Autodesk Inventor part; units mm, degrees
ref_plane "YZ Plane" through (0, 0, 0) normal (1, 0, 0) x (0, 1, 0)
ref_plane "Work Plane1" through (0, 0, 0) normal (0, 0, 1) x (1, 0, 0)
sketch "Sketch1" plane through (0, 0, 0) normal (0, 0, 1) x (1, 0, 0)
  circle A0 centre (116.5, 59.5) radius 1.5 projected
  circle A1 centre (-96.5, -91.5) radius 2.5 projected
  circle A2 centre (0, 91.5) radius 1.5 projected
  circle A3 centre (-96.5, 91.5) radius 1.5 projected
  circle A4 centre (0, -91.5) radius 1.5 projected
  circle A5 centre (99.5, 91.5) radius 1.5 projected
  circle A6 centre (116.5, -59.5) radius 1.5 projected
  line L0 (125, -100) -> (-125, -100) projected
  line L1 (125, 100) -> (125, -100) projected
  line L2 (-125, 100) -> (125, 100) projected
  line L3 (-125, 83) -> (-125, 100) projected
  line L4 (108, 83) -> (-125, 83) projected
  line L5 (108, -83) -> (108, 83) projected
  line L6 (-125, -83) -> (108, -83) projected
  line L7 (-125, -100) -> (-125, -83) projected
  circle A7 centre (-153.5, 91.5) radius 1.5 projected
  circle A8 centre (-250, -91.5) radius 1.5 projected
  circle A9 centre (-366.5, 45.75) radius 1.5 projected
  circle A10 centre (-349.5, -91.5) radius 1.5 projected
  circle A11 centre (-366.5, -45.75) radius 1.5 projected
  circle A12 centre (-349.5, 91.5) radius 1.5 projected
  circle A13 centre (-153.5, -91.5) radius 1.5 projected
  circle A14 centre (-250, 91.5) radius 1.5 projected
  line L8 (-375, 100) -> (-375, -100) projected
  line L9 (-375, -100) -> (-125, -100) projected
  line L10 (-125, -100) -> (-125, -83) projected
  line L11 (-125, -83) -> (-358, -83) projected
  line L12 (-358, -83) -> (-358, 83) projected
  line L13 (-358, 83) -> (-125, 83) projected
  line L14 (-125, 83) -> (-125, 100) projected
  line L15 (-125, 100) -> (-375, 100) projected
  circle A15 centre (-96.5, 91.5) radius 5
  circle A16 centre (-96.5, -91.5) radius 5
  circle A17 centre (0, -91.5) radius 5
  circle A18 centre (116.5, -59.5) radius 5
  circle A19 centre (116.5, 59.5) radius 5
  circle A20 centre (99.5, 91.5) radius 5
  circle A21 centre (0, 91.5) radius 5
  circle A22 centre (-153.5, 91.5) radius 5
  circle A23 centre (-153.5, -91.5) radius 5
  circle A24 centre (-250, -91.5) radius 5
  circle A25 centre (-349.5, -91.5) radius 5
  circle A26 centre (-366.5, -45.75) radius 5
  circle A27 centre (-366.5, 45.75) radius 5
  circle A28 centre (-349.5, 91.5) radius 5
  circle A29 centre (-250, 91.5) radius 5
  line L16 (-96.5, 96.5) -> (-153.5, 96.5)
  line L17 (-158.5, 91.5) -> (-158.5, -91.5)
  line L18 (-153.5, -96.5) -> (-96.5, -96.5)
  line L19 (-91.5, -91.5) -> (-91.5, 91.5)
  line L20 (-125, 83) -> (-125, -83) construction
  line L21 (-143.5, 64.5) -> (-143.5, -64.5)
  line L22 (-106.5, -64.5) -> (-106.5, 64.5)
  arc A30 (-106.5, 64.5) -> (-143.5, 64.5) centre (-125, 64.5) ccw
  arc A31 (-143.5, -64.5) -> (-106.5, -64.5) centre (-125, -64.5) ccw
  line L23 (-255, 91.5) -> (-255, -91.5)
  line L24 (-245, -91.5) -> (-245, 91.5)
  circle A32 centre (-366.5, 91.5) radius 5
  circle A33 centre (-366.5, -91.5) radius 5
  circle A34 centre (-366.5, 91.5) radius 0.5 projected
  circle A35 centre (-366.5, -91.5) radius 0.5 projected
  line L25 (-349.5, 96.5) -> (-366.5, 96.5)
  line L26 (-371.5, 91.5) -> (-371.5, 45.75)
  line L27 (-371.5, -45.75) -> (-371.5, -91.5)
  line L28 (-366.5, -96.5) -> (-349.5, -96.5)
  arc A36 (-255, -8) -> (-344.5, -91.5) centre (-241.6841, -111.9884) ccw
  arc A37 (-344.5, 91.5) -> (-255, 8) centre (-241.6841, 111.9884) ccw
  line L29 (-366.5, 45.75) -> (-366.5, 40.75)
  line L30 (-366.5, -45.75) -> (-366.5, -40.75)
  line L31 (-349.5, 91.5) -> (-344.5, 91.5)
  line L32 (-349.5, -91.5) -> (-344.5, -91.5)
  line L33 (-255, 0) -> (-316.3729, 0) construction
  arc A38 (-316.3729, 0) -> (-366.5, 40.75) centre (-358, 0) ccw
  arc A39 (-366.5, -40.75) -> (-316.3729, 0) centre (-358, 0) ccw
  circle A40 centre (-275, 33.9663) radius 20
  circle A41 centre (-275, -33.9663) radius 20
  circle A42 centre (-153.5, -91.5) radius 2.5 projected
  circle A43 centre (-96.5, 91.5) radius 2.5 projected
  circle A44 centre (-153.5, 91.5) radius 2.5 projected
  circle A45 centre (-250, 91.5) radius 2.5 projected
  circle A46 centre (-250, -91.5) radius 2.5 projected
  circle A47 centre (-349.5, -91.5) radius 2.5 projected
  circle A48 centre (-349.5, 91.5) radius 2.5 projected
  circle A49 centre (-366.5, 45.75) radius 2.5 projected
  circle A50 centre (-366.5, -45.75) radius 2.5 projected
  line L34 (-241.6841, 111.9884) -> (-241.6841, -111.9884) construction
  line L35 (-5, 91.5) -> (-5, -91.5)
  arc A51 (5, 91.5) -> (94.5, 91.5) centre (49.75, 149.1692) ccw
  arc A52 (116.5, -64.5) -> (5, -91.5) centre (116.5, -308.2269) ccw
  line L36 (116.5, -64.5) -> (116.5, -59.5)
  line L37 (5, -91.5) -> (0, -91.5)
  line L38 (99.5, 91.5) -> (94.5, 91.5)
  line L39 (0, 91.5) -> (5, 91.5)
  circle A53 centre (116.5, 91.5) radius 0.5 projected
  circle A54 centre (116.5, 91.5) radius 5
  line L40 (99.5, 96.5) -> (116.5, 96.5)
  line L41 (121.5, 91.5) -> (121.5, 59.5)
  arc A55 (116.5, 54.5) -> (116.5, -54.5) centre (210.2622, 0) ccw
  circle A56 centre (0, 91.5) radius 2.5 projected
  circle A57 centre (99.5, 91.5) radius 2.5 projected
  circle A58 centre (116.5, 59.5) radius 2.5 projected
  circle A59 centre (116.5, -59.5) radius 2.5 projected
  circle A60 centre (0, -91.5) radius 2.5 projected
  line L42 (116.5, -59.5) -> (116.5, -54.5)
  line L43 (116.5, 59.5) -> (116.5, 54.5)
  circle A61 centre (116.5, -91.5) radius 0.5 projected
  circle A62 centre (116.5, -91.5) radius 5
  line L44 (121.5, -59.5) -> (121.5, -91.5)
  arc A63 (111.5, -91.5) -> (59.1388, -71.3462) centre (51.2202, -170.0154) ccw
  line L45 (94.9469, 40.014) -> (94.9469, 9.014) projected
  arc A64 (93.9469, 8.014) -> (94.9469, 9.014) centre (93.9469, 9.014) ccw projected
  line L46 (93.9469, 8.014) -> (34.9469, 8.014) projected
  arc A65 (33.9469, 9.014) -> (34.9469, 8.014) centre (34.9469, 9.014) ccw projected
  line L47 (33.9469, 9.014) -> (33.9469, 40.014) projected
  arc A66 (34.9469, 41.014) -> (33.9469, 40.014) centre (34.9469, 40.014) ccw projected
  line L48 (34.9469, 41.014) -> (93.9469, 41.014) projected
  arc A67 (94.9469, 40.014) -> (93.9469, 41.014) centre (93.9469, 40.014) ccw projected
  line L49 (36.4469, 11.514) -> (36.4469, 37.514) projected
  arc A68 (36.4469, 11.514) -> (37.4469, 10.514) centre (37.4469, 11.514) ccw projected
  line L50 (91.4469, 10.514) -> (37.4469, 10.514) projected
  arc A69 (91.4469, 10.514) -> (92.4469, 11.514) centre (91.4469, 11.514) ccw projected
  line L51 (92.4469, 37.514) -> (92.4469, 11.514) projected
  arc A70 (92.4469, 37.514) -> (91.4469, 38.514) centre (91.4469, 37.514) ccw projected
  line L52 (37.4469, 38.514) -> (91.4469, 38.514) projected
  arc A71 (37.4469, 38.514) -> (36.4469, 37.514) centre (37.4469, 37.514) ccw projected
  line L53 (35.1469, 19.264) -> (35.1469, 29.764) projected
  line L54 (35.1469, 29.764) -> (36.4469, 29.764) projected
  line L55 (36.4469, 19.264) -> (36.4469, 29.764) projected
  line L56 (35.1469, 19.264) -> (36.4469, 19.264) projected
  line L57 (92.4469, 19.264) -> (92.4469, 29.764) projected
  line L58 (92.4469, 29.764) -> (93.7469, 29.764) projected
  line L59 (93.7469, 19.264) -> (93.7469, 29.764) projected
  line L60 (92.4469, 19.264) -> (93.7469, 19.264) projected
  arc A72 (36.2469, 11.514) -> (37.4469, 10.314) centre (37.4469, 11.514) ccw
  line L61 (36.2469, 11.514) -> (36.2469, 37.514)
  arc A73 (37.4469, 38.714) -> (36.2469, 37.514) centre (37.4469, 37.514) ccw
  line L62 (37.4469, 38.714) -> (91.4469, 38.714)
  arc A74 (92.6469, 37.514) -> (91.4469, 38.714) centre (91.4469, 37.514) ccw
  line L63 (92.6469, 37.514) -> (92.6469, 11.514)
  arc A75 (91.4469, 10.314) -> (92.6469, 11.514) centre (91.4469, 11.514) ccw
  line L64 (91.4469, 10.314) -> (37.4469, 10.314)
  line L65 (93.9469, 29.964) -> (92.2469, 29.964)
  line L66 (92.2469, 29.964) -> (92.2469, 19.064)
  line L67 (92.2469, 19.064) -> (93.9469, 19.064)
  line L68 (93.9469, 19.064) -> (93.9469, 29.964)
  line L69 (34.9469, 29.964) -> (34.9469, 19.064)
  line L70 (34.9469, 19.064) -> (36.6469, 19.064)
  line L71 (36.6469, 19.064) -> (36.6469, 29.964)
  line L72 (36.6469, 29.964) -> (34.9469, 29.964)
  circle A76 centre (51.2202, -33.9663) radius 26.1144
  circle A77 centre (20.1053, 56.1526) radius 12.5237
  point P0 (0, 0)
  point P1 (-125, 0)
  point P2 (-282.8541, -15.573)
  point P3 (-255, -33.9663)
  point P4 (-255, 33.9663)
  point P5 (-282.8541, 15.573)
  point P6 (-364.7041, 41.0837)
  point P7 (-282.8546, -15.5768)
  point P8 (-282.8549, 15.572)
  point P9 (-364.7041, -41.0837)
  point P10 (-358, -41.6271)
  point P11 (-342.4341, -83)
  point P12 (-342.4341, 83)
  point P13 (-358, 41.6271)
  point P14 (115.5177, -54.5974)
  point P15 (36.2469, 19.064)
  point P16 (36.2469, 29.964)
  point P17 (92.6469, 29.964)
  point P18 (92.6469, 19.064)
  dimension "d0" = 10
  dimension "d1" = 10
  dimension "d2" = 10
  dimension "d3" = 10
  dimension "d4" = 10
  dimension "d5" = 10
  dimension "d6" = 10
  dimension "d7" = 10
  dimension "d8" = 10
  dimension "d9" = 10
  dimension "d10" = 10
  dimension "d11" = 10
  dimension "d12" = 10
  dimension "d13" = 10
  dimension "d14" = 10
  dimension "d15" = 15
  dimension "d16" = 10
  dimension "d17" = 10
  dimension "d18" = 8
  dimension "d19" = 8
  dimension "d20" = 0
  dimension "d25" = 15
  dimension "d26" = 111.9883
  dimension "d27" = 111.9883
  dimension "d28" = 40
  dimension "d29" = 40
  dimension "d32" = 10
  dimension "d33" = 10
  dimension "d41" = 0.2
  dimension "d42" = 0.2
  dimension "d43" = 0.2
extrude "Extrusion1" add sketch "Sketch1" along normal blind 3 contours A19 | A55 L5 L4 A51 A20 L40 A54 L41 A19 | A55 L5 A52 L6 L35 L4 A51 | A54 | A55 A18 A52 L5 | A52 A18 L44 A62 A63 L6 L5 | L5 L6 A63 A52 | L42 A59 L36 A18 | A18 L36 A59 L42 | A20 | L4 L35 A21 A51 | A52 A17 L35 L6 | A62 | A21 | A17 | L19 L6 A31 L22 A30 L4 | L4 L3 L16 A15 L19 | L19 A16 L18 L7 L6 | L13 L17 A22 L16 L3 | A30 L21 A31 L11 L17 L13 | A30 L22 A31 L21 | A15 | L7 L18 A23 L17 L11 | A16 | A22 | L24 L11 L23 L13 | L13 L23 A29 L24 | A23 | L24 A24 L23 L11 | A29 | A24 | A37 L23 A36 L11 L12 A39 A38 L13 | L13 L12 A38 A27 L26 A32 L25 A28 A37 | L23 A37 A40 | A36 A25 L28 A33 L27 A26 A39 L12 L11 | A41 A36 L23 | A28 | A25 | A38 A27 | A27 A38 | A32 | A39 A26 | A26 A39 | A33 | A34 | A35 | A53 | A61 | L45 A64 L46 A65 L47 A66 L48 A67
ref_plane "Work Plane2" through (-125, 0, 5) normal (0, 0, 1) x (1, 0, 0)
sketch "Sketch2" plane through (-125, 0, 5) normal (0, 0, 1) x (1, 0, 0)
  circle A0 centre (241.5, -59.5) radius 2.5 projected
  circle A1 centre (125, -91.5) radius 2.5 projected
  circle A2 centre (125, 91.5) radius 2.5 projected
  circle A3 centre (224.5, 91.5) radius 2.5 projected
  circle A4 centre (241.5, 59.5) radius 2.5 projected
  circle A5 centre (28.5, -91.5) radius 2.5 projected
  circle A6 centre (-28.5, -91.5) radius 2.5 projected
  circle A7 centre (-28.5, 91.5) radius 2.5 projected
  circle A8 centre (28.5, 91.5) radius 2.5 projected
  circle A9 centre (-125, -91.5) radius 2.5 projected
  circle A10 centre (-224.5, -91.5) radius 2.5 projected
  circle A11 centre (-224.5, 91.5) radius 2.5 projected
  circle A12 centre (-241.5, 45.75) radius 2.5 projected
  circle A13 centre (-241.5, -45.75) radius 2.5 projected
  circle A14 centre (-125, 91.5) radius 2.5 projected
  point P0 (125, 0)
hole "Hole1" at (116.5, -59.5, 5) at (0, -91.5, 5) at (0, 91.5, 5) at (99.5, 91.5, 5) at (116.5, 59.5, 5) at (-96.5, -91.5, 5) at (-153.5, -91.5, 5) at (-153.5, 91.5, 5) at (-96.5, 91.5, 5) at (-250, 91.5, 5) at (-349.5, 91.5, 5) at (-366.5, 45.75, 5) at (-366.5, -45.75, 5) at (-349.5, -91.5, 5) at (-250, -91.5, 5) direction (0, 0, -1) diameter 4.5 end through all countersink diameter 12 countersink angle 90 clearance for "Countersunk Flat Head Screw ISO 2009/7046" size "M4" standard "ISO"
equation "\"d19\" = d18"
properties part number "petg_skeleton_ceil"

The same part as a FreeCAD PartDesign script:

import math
import FreeCAD as App
import Part
import Sketcher
Q = App.Units.Quantity

doc = App.newDocument("Part")
body = doc.addObject("PartDesign::Body", "Body")
body.AllowCompound = True

sketch1 = doc.addObject("Sketcher::SketchObject", "Sketch")
body.addObject(sketch1)
sketch1.AttachmentSupport = (doc.XY_Plane, [""])
sketch1.MapMode = "FlatFace"
sketch1.addGeometry(Part.ArcOfCircle(Part.Circle(App.Vector(116.5, 59.5, 0), App.Vector(0, 0, 1), 5), math.radians(-90), math.radians(0)), False)
sketch1.addGeometry(Part.LineSegment(App.Vector(121.5, 59.5, 0), App.Vector(121.5, 91.5, 0)), False)
sketch1.addGeometry(Part.ArcOfCircle(Part.Circle(App.Vector(116.5, 91.5, 0), App.Vector(0, 0, 1), 5), math.radians(0), math.radians(90)), False)
sketch1.addGeometry(Part.LineSegment(App.Vector(116.5, 96.5, 0), App.Vector(99.5, 96.5, 0)), False)
sketch1.addGeometry(Part.ArcOfCircle(Part.Circle(App.Vector(99.5, 91.5, 0), App.Vector(0, 0, 1), 5), math.radians(90), math.radians(180)), False)
sketch1.addGeometry(Part.ArcOfCircle(Part.Circle(App.Vector(49.75, 149.1692, 0), App.Vector(0, 0, 1), 72.995199), math.radians(-127.810657), math.radians(-52.189343)), False)
sketch1.addGeometry(Part.ArcOfCircle(Part.Circle(App.Vector(0, 91.5, 0), App.Vector(0, 0, 1), 5), math.radians(0), math.radians(180)), False)
sketch1.addGeometry(Part.LineSegment(App.Vector(-5, 91.5, 0), App.Vector(-5, -91.5, 0)), False)
sketch1.addGeometry(Part.ArcOfCircle(Part.Circle(App.Vector(0, -91.5, 0), App.Vector(0, 0, 1), 5), math.radians(180), math.radians(360)), False)
sketch1.addGeometry(Part.ArcOfCircle(Part.Circle(App.Vector(116.5, -308.2269, 0), App.Vector(0, 0, 1), 243.7269), math.radians(103.612276), math.radians(117.224568)), False)
sketch1.addGeometry(Part.ArcOfCircle(Part.Circle(App.Vector(51.2202, -170.0154, 0), App.Vector(0, 0, 1), 98.986475), math.radians(52.484931), math.radians(85.411617)), False)
sketch1.addGeometry(Part.ArcOfCircle(Part.Circle(App.Vector(116.5, -91.5, 0), App.Vector(0, 0, 1), 5), math.radians(180), math.radians(360)), False)
sketch1.addGeometry(Part.LineSegment(App.Vector(121.5, -91.5, 0), App.Vector(121.5, -59.5, 0)), False)
sketch1.addGeometry(Part.ArcOfCircle(Part.Circle(App.Vector(116.5, -59.5, 0), App.Vector(0, 0, 1), 5), math.radians(0), math.radians(90)), False)
sketch1.addGeometry(Part.ArcOfCircle(Part.Circle(App.Vector(210.2622, 0, 0), App.Vector(0, 0, 1), 108.450911), math.radians(149.832375), math.radians(210.167625)), False)
sketch1.addGeometry(Part.Circle(App.Vector(116.5, 59.5, 0), App.Vector(0, 0, 1), 2.5), False)
sketch1.addGeometry(Part.Circle(App.Vector(20.1053, 56.1526, 0), App.Vector(0, 0, 1), 12.5237), False)
sketch1.addGeometry(Part.Circle(App.Vector(51.2202, -33.9663, 0), App.Vector(0, 0, 1), 26.1144), False)
sketch1.addGeometry(Part.Circle(App.Vector(99.5, 91.5, 0), App.Vector(0, 0, 1), 2.5), False)
sketch1.addGeometry(Part.LineSegment(App.Vector(36.2469, 19.064, 0), App.Vector(34.9469, 19.064, 0)), False)
sketch1.addGeometry(Part.LineSegment(App.Vector(34.9469, 19.064, 0), App.Vector(34.9469, 29.964, 0)), False)
sketch1.addGeometry(Part.LineSegment(App.Vector(34.9469, 29.964, 0), App.Vector(36.2469, 29.964, 0)), False)
sketch1.addGeometry(Part.LineSegment(App.Vector(36.2469, 29.964, 0), App.Vector(36.2469, 37.514, 0)), False)
sketch1.addGeometry(Part.ArcOfCircle(Part.Circle(App.Vector(37.4469, 37.514, 0), App.Vector(0, 0, 1), 1.2), math.radians(90), math.radians(180)), False)
sketch1.addGeometry(Part.LineSegment(App.Vector(37.4469, 38.714, 0), App.Vector(91.4469, 38.714, 0)), False)
sketch1.addGeometry(Part.ArcOfCircle(Part.Circle(App.Vector(91.4469, 37.514, 0), App.Vector(0, 0, 1), 1.2), math.radians(0), math.radians(90)), False)
sketch1.addGeometry(Part.LineSegment(App.Vector(92.6469, 37.514, 0), App.Vector(92.6469, 29.964, 0)), False)
sketch1.addGeometry(Part.LineSegment(App.Vector(92.6469, 29.964, 0), App.Vector(93.9469, 29.964, 0)), False)
sketch1.addGeometry(Part.LineSegment(App.Vector(93.9469, 29.964, 0), App.Vector(93.9469, 19.064, 0)), False)
sketch1.addGeometry(Part.LineSegment(App.Vector(93.9469, 19.064, 0), App.Vector(92.6469, 19.064, 0)), False)
sketch1.addGeometry(Part.LineSegment(App.Vector(92.6469, 19.064, 0), App.Vector(92.6469, 11.514, 0)), False)
sketch1.addGeometry(Part.ArcOfCircle(Part.Circle(App.Vector(91.4469, 11.514, 0), App.Vector(0, 0, 1), 1.2), math.radians(-90), math.radians(0)), False)
sketch1.addGeometry(Part.LineSegment(App.Vector(91.4469, 10.314, 0), App.Vector(37.4469, 10.314, 0)), False)
sketch1.addGeometry(Part.ArcOfCircle(Part.Circle(App.Vector(37.4469, 11.514, 0), App.Vector(0, 0, 1), 1.2), math.radians(180), math.radians(270)), False)
sketch1.addGeometry(Part.LineSegment(App.Vector(36.2469, 11.514, 0), App.Vector(36.2469, 19.064, 0)), False)
sketch1.addGeometry(Part.Circle(App.Vector(116.5, -59.5, 0), App.Vector(0, 0, 1), 2.5), False)
sketch1.addGeometry(Part.Circle(App.Vector(0, -91.5, 0), App.Vector(0, 0, 1), 2.5), False)
sketch1.addGeometry(Part.Circle(App.Vector(0, 91.5, 0), App.Vector(0, 0, 1), 2.5), False)
sketch1.addGeometry(Part.ArcOfCircle(Part.Circle(App.Vector(-96.5, 91.5, 0), App.Vector(0, 0, 1), 5), math.radians(0), math.radians(90)), False)
sketch1.addGeometry(Part.LineSegment(App.Vector(-96.5, 96.5, 0), App.Vector(-153.5, 96.5, 0)), False)
sketch1.addGeometry(Part.ArcOfCircle(Part.Circle(App.Vector(-153.5, 91.5, 0), App.Vector(0, 0, 1), 5), math.radians(90), math.radians(180)), False)
sketch1.addGeometry(Part.LineSegment(App.Vector(-158.5, 91.5, 0), App.Vector(-158.5, -91.5, 0)), False)
sketch1.addGeometry(Part.ArcOfCircle(Part.Circle(App.Vector(-153.5, -91.5, 0), App.Vector(0, 0, 1), 5), math.radians(180), math.radians(270)), False)
sketch1.addGeometry(Part.LineSegment(App.Vector(-153.5, -96.5, 0), App.Vector(-96.5, -96.5, 0)), False)
sketch1.addGeometry(Part.ArcOfCircle(Part.Circle(App.Vector(-96.5, -91.5, 0), App.Vector(0, 0, 1), 5), math.radians(-90), math.radians(0)), False)
sketch1.addGeometry(Part.LineSegment(App.Vector(-91.5, -91.5, 0), App.Vector(-91.5, 91.5, 0)), False)
sketch1.addGeometry(Part.Circle(App.Vector(-96.5, -91.5, 0), App.Vector(0, 0, 1), 2.5), False)
sketch1.addGeometry(Part.Circle(App.Vector(-96.5, 91.5, 0), App.Vector(0, 0, 1), 2.5), False)
sketch1.addGeometry(Part.Circle(App.Vector(-153.5, -91.5, 0), App.Vector(0, 0, 1), 2.5), False)
sketch1.addGeometry(Part.Circle(App.Vector(-153.5, 91.5, 0), App.Vector(0, 0, 1), 2.5), False)
sketch1.addGeometry(Part.ArcOfCircle(Part.Circle(App.Vector(-250, 91.5, 0), App.Vector(0, 0, 1), 5), math.radians(0), math.radians(180)), False)
sketch1.addGeometry(Part.LineSegment(App.Vector(-255, 91.5, 0), App.Vector(-255, 33.9663, 0)), False)
sketch1.addGeometry(Part.ArcOfCircle(Part.Circle(App.Vector(-275, 33.9663, 0), App.Vector(0, 0, 1), 20), math.radians(-113.122862), math.radians(0)), False)
sketch1.addGeometry(Part.ArcOfCircle(Part.Circle(App.Vector(-241.6841, 111.9884, 0), App.Vector(0, 0, 1), 104.837416), math.radians(-168.730143), math.radians(-113.122787)), False)
sketch1.addGeometry(Part.ArcOfCircle(Part.Circle(App.Vector(-349.5, 91.5, 0), App.Vector(0, 0, 1), 5), math.radians(0), math.radians(90)), False)
sketch1.addGeometry(Part.LineSegment(App.Vector(-349.5, 96.5, 0), App.Vector(-366.5, 96.5, 0)), False)
sketch1.addGeometry(Part.ArcOfCircle(Part.Circle(App.Vector(-366.5, 91.5, 0), App.Vector(0, 0, 1), 5), math.radians(90), math.radians(180)), False)
sketch1.addGeometry(Part.LineSegment(App.Vector(-371.5, 91.5, 0), App.Vector(-371.5, 45.75, 0)), False)
sketch1.addGeometry(Part.ArcOfCircle(Part.Circle(App.Vector(-366.5, 45.75, 0), App.Vector(0, 0, 1), 5), math.radians(180), math.radians(270)), False)
sketch1.addGeometry(Part.ArcOfCircle(Part.Circle(App.Vector(-366.5, 45.75, 0), App.Vector(0, 0, 1), 5), math.radians(-90), math.radians(-68.949658)), False)
sketch1.addGeometry(Part.ArcOfCircle(Part.Circle(App.Vector(-358, 0, 0), App.Vector(0, 0, 1), 41.627065), math.radians(0), math.radians(99.267876)), False)
sketch1.addGeometry(Part.ArcOfCircle(Part.Circle(App.Vector(-358, 0, 0), App.Vector(0, 0, 1), 41.6271), math.radians(-99.267897), math.radians(0)), False)
sketch1.addGeometry(Part.ArcOfCircle(Part.Circle(App.Vector(-366.5, -45.75, 0), App.Vector(0, 0, 1), 5), math.radians(68.949838), math.radians(90)), False)
sketch1.addGeometry(Part.ArcOfCircle(Part.Circle(App.Vector(-366.5, -45.75, 0), App.Vector(0, 0, 1), 5), math.radians(90), math.radians(180)), False)
sketch1.addGeometry(Part.LineSegment(App.Vector(-371.5, -45.75, 0), App.Vector(-371.5, -91.5, 0)), False)
sketch1.addGeometry(Part.ArcOfCircle(Part.Circle(App.Vector(-366.5, -91.5, 0), App.Vector(0, 0, 1), 5), math.radians(180), math.radians(270)), False)
sketch1.addGeometry(Part.LineSegment(App.Vector(-366.5, -96.5, 0), App.Vector(-349.5, -96.5, 0)), False)
sketch1.addGeometry(Part.ArcOfCircle(Part.Circle(App.Vector(-349.5, -91.5, 0), App.Vector(0, 0, 1), 5), math.radians(-90), math.radians(0)), False)
sketch1.addGeometry(Part.ArcOfCircle(Part.Circle(App.Vector(-241.6841, -111.9884, 0), App.Vector(0, 0, 1), 104.837496), math.radians(113.122769), math.radians(168.730143)), False)
sketch1.addGeometry(Part.ArcOfCircle(Part.Circle(App.Vector(-275, -33.9663, 0), App.Vector(0, 0, 1), 20), math.radians(0), math.radians(113.122765)), False)
sketch1.addGeometry(Part.LineSegment(App.Vector(-255, -33.9663, 0), App.Vector(-255, -91.5, 0)), False)
sketch1.addGeometry(Part.ArcOfCircle(Part.Circle(App.Vector(-250, -91.5, 0), App.Vector(0, 0, 1), 5), math.radians(180), math.radians(360)), False)
sketch1.addGeometry(Part.LineSegment(App.Vector(-245, -91.5, 0), App.Vector(-245, 91.5, 0)), False)
sketch1.addGeometry(Part.Circle(App.Vector(-250, -91.5, 0), App.Vector(0, 0, 1), 2.5), False)
sketch1.addGeometry(Part.Circle(App.Vector(-250, 91.5, 0), App.Vector(0, 0, 1), 2.5), False)
sketch1.addGeometry(Part.Circle(App.Vector(-349.5, 91.5, 0), App.Vector(0, 0, 1), 2.5), False)
sketch1.addGeometry(Part.Circle(App.Vector(-366.5, 45.75, 0), App.Vector(0, 0, 1), 2.5), False)
sketch1.addGeometry(Part.Circle(App.Vector(-349.5, -91.5, 0), App.Vector(0, 0, 1), 2.5), False)
sketch1.addGeometry(Part.Circle(App.Vector(-366.5, -45.75, 0), App.Vector(0, 0, 1), 2.5), False)
sketch1.addConstraint(Sketcher.Constraint("Tangent", 0, 2, 1, 1))
sketch1.addConstraint(Sketcher.Constraint("Tangent", 1, 2, 2, 1))
sketch1.addConstraint(Sketcher.Constraint("Tangent", 2, 2, 3, 1))
sketch1.addConstraint(Sketcher.Constraint("Tangent", 3, 2, 4, 1))
sketch1.addConstraint(Sketcher.Constraint("Coincident", 4, 2, 5, 2))
sketch1.addConstraint(Sketcher.Constraint("Coincident", 5, 1, 6, 1))
sketch1.addConstraint(Sketcher.Constraint("Tangent", 6, 2, 7, 1))
sketch1.addConstraint(Sketcher.Constraint("Tangent", 7, 2, 8, 1))
sketch1.addConstraint(Sketcher.Constraint("Coincident", 8, 2, 9, 2))
sketch1.addConstraint(Sketcher.Constraint("Coincident", 9, 1, 10, 2))
sketch1.addConstraint(Sketcher.Constraint("Coincident", 10, 1, 11, 1))
sketch1.addConstraint(Sketcher.Constraint("Tangent", 11, 2, 12, 1))
sketch1.addConstraint(Sketcher.Constraint("Tangent", 12, 2, 13, 1))
sketch1.addConstraint(Sketcher.Constraint("Coincident", 13, 2, 14, 2))
sketch1.addConstraint(Sketcher.Constraint("Coincident", 14, 1, 0, 1))
sketch1.addConstraint(Sketcher.Constraint("Coincident", 19, 2, 20, 1))
sketch1.addConstraint(Sketcher.Constraint("Coincident", 20, 2, 21, 1))
sketch1.addConstraint(Sketcher.Constraint("Coincident", 21, 2, 22, 1))
sketch1.addConstraint(Sketcher.Constraint("Tangent", 22, 2, 23, 2))
sketch1.addConstraint(Sketcher.Constraint("Tangent", 23, 1, 24, 1))
sketch1.addConstraint(Sketcher.Constraint("Tangent", 24, 2, 25, 2))
sketch1.addConstraint(Sketcher.Constraint("Tangent", 25, 1, 26, 1))
sketch1.addConstraint(Sketcher.Constraint("Coincident", 26, 2, 27, 1))
sketch1.addConstraint(Sketcher.Constraint("Coincident", 27, 2, 28, 1))
sketch1.addConstraint(Sketcher.Constraint("Coincident", 28, 2, 29, 1))
sketch1.addConstraint(Sketcher.Constraint("Coincident", 29, 2, 30, 1))
sketch1.addConstraint(Sketcher.Constraint("Tangent", 30, 2, 31, 2))
sketch1.addConstraint(Sketcher.Constraint("Tangent", 31, 1, 32, 1))
sketch1.addConstraint(Sketcher.Constraint("Tangent", 32, 2, 33, 2))
sketch1.addConstraint(Sketcher.Constraint("Tangent", 33, 1, 34, 1))
sketch1.addConstraint(Sketcher.Constraint("Coincident", 34, 2, 19, 1))
sketch1.addConstraint(Sketcher.Constraint("Tangent", 38, 2, 39, 1))
sketch1.addConstraint(Sketcher.Constraint("Tangent", 39, 2, 40, 1))
sketch1.addConstraint(Sketcher.Constraint("Tangent", 40, 2, 41, 1))
sketch1.addConstraint(Sketcher.Constraint("Tangent", 41, 2, 42, 1))
sketch1.addConstraint(Sketcher.Constraint("Tangent", 42, 2, 43, 1))
sketch1.addConstraint(Sketcher.Constraint("Tangent", 43, 2, 44, 1))
sketch1.addConstraint(Sketcher.Constraint("Tangent", 44, 2, 45, 1))
sketch1.addConstraint(Sketcher.Constraint("Tangent", 45, 2, 38, 1))
sketch1.addConstraint(Sketcher.Constraint("Tangent", 50, 2, 51, 1))
sketch1.addConstraint(Sketcher.Constraint("Tangent", 51, 2, 52, 2))
sketch1.addConstraint(Sketcher.Constraint("Tangent", 52, 1, 53, 2))
sketch1.addConstraint(Sketcher.Constraint("Coincident", 53, 1, 54, 1))
sketch1.addConstraint(Sketcher.Constraint("Tangent", 54, 2, 55, 1))
sketch1.addConstraint(Sketcher.Constraint("Tangent", 55, 2, 56, 1))
sketch1.addConstraint(Sketcher.Constraint("Tangent", 56, 2, 57, 1))
sketch1.addConstraint(Sketcher.Constraint("Tangent", 57, 2, 58, 1))
sketch1.addConstraint(Sketcher.Constraint("Tangent", 58, 2, 59, 1))
sketch1.addConstraint(Sketcher.Constraint("Coincident", 59, 2, 60, 2))
sketch1.addConstraint(Sketcher.Constraint("Tangent", 60, 1, 61, 2))
sketch1.addConstraint(Sketcher.Constraint("Coincident", 61, 1, 62, 1))
sketch1.addConstraint(Sketcher.Constraint("Tangent", 62, 2, 63, 1))
sketch1.addConstraint(Sketcher.Constraint("Tangent", 63, 2, 64, 1))
sketch1.addConstraint(Sketcher.Constraint("Tangent", 64, 2, 65, 1))
sketch1.addConstraint(Sketcher.Constraint("Tangent", 65, 2, 66, 1))
sketch1.addConstraint(Sketcher.Constraint("Tangent", 66, 2, 67, 1))
sketch1.addConstraint(Sketcher.Constraint("Coincident", 67, 2, 68, 2))
sketch1.addConstraint(Sketcher.Constraint("Tangent", 68, 1, 69, 2))
sketch1.addConstraint(Sketcher.Constraint("Tangent", 69, 1, 70, 1))
sketch1.addConstraint(Sketcher.Constraint("Tangent", 70, 2, 71, 1))
sketch1.addConstraint(Sketcher.Constraint("Tangent", 71, 2, 72, 1))
sketch1.addConstraint(Sketcher.Constraint("Tangent", 72, 2, 50, 1))
sketch1.addConstraint(Sketcher.Constraint("Vertical", 1))
sketch1.addConstraint(Sketcher.Constraint("Horizontal", 3))
sketch1.addConstraint(Sketcher.Constraint("Vertical", 7))
sketch1.addConstraint(Sketcher.Constraint("Vertical", 12))
sketch1.addConstraint(Sketcher.Constraint("Horizontal", 19))
sketch1.addConstraint(Sketcher.Constraint("Vertical", 20))
sketch1.addConstraint(Sketcher.Constraint("Horizontal", 21))
sketch1.addConstraint(Sketcher.Constraint("Vertical", 22))
sketch1.addConstraint(Sketcher.Constraint("Horizontal", 24))
sketch1.addConstraint(Sketcher.Constraint("Vertical", 26))
sketch1.addConstraint(Sketcher.Constraint("Horizontal", 27))
sketch1.addConstraint(Sketcher.Constraint("Vertical", 28))
sketch1.addConstraint(Sketcher.Constraint("Horizontal", 29))
sketch1.addConstraint(Sketcher.Constraint("Vertical", 30))
sketch1.addConstraint(Sketcher.Constraint("Horizontal", 32))
sketch1.addConstraint(Sketcher.Constraint("Vertical", 34))
sketch1.addConstraint(Sketcher.Constraint("Horizontal", 39))
sketch1.addConstraint(Sketcher.Constraint("Vertical", 41))
sketch1.addConstraint(Sketcher.Constraint("Horizontal", 43))
sketch1.addConstraint(Sketcher.Constraint("Vertical", 45))
sketch1.addConstraint(Sketcher.Constraint("Vertical", 51))
sketch1.addConstraint(Sketcher.Constraint("Horizontal", 55))
sketch1.addConstraint(Sketcher.Constraint("Vertical", 57))
sketch1.addConstraint(Sketcher.Constraint("Vertical", 64))
sketch1.addConstraint(Sketcher.Constraint("Horizontal", 66))
sketch1.addConstraint(Sketcher.Constraint("Vertical", 70))
sketch1.addConstraint(Sketcher.Constraint("Vertical", 72))
sketch1.addConstraint(Sketcher.Constraint("Coincident", 15, 3, 0, 3))
sketch1.addConstraint(Sketcher.Constraint("Coincident", 18, 3, 4, 3))
sketch1.addConstraint(Sketcher.Constraint("Coincident", 35, 3, 13, 3))
sketch1.addConstraint(Sketcher.Constraint("Coincident", 36, 3, 8, 3))
sketch1.addConstraint(Sketcher.Constraint("Coincident", 37, 3, 6, 3))
sketch1.addConstraint(Sketcher.Constraint("Coincident", 46, 3, 44, 3))
sketch1.addConstraint(Sketcher.Constraint("Coincident", 47, 3, 38, 3))
sketch1.addConstraint(Sketcher.Constraint("Coincident", 48, 3, 42, 3))
sketch1.addConstraint(Sketcher.Constraint("Coincident", 49, 3, 40, 3))
sketch1.addConstraint(Sketcher.Constraint("Coincident", 73, 3, 71, 3))
sketch1.addConstraint(Sketcher.Constraint("Coincident", 74, 3, 50, 3))
sketch1.addConstraint(Sketcher.Constraint("Coincident", 75, 3, 54, 3))
sketch1.addConstraint(Sketcher.Constraint("Coincident", 76, 3, 58, 3))
sketch1.addConstraint(Sketcher.Constraint("Coincident", 77, 3, 67, 3))
sketch1.addConstraint(Sketcher.Constraint("Coincident", 78, 3, 62, 3))
sketch1.addConstraint(Sketcher.Constraint("Equal", 0, 2))
sketch1.addConstraint(Sketcher.Constraint("Equal", 2, 4))
sketch1.addConstraint(Sketcher.Constraint("Equal", 4, 6))
sketch1.addConstraint(Sketcher.Constraint("Equal", 6, 8))
sketch1.addConstraint(Sketcher.Constraint("Equal", 8, 11))
sketch1.addConstraint(Sketcher.Constraint("Equal", 11, 13))
sketch1.addConstraint(Sketcher.Constraint("Equal", 15, 18))
sketch1.addConstraint(Sketcher.Constraint("Equal", 23, 25))
sketch1.addConstraint(Sketcher.Constraint("Equal", 25, 31))
sketch1.addConstraint(Sketcher.Constraint("Equal", 31, 33))
sketch1.addConstraint(Sketcher.Constraint("Equal", 18, 35))
sketch1.addConstraint(Sketcher.Constraint("Equal", 35, 36))
sketch1.addConstraint(Sketcher.Constraint("Equal", 36, 37))
sketch1.addConstraint(Sketcher.Constraint("Equal", 13, 38))
sketch1.addConstraint(Sketcher.Constraint("Equal", 38, 40))
sketch1.addConstraint(Sketcher.Constraint("Equal", 40, 42))
sketch1.addConstraint(Sketcher.Constraint("Equal", 42, 44))
sketch1.addConstraint(Sketcher.Constraint("Equal", 37, 46))
sketch1.addConstraint(Sketcher.Constraint("Equal", 46, 47))
sketch1.addConstraint(Sketcher.Constraint("Equal", 47, 48))
sketch1.addConstraint(Sketcher.Constraint("Equal", 48, 49))
sketch1.addConstraint(Sketcher.Constraint("Equal", 44, 50))
sketch1.addConstraint(Sketcher.Constraint("Equal", 50, 54))
sketch1.addConstraint(Sketcher.Constraint("Equal", 54, 56))
sketch1.addConstraint(Sketcher.Constraint("Equal", 56, 58))
sketch1.addConstraint(Sketcher.Constraint("Equal", 58, 59))
sketch1.addConstraint(Sketcher.Constraint("Equal", 60, 61))
sketch1.addConstraint(Sketcher.Constraint("Equal", 59, 62))
sketch1.addConstraint(Sketcher.Constraint("Equal", 62, 63))
sketch1.addConstraint(Sketcher.Constraint("Equal", 63, 65))
sketch1.addConstraint(Sketcher.Constraint("Equal", 65, 67))
sketch1.addConstraint(Sketcher.Constraint("Equal", 53, 68))
sketch1.addConstraint(Sketcher.Constraint("Equal", 52, 69))
sketch1.addConstraint(Sketcher.Constraint("Equal", 67, 71))
sketch1.addConstraint(Sketcher.Constraint("Equal", 49, 73))
sketch1.addConstraint(Sketcher.Constraint("Equal", 73, 74))
sketch1.addConstraint(Sketcher.Constraint("Equal", 74, 75))
sketch1.addConstraint(Sketcher.Constraint("Equal", 75, 76))
sketch1.addConstraint(Sketcher.Constraint("Equal", 76, 77))
sketch1.addConstraint(Sketcher.Constraint("Equal", 77, 78))
sketch1.addConstraint(Sketcher.Constraint("Symmetric", 6, 3, 8, 3, -1, 1))
sketch1.addConstraint(Sketcher.Constraint("Symmetric", 2, 3, 11, 3, -1))
sketch1.addConstraint(Sketcher.Constraint("Symmetric", 58, 3, 62, 3, -1))
sketch1.addConstraint(Sketcher.Constraint("Symmetric", 54, 3, 67, 3, -1))
sketch1.addConstraint(Sketcher.Constraint("Symmetric", 53, 3, 68, 3, -1))
sketch1.addConstraint(Sketcher.Constraint("Symmetric", 13, 2, 14, 1, -1))
sketch1.addConstraint(Sketcher.Constraint("PointOnObject", 60, 3, -1))
sketch1.addConstraint(Sketcher.Constraint("PointOnObject", 60, 1, -1))
sketch1.addConstraint(Sketcher.Constraint("Horizontal", 4, 3, 6, 3))
sketch1.addConstraint(Sketcher.Constraint("Horizontal", 37, 3, 38, 3))
sketch1.addConstraint(Sketcher.Constraint("Horizontal", 36, 3, 42, 3))
sketch1.addConstraint(Sketcher.Constraint("Horizontal", 49, 3, 50, 3))
sketch1.addConstraint(Sketcher.Constraint("Horizontal", 50, 3, 54, 3))
sketch1.addConstraint(Sketcher.Constraint("Horizontal", 17, 3, 69, 3))
sketch1.addConstraint(Sketcher.Constraint("Horizontal", 67, 3, 71, 3))
sketch1.addConstraint(Sketcher.Constraint("Horizontal", 1, 2, 4, 2))
sketch1.addConstraint(Sketcher.Constraint("Horizontal", 4, 2, 5, 1))
sketch1.addConstraint(Sketcher.Constraint("Horizontal", 7, 2, 8, 2))
sketch1.addConstraint(Sketcher.Constraint("Horizontal", 8, 2, 10, 1))
sketch1.addConstraint(Sketcher.Constraint("Horizontal", 21, 2, 26, 2))
sketch1.addConstraint(Sketcher.Constraint("Horizontal", 19, 2, 28, 2))
sketch1.addConstraint(Sketcher.Constraint("Horizontal", 50, 2, 53, 1))
sketch1.addConstraint(Sketcher.Constraint("Vertical", 2, 3, 9, 3))
sketch1.addConstraint(Sketcher.Constraint("Vertical", 10, 3, 17, 3))
sketch1.addConstraint(Sketcher.Constraint("Vertical", 25, 3, 31, 3))
sketch1.addConstraint(Sketcher.Constraint("Vertical", 23, 3, 33, 3))
sketch1.addConstraint(Sketcher.Constraint("Vertical", 2, 2, 13, 2))
sketch1.addConstraint(Sketcher.Constraint("Vertical", 55, 2, 58, 2))
sketch1.addConstraint(Sketcher.Constraint("Vertical", 58, 2, 62, 2))
sketch1.addConstraint(Sketcher.Constraint("Equal", 21, 27))
sketch1.addConstraint(Sketcher.Constraint("Equal", 3, 55))
sketch1.addConstraint(Sketcher.Constraint("Equal", 26, 30))
sketch1.addConstraint(Sketcher.Constraint("Radius", 0, Q("5 mm")))
sketch1.addConstraint(Sketcher.Constraint("Radius", 52, Q("20 mm")))
sketch1.addConstraint(Sketcher.Constraint("Diameter", 15, Q("5 mm")))
sketch1.addConstraint(Sketcher.Constraint("Radius", 23, Q("1.2 mm")))
sketch1.addConstraint(Sketcher.Constraint("DistanceX", 3, 2, 3, 1, Q("17 mm")))
sketch1.addConstraint(Sketcher.Constraint("DistanceX", 24, 1, 24, 2, Q("54 mm")))
sketch1.addConstraint(Sketcher.Constraint("DistanceX", 39, 2, 39, 1, Q("57 mm")))
sketch1.addConstraint(Sketcher.Constraint("DistanceY", 1, 1, 1, 2, Q("32 mm")))
sketch1.addConstraint(Sketcher.Constraint("DistanceY", 7, 2, 7, 1, Q("183 mm")))
sketch1.addConstraint(Sketcher.Constraint("DistanceX", 19, 2, 19, 1, Q("1.3 mm")))
sketch1.addConstraint(Sketcher.Constraint("DistanceY", 20, 1, 20, 2, Q("10.9 mm")))
sketch1.addConstraint(Sketcher.Constraint("DistanceX", 50, 3, -1, 1, Q("250 mm")))
sketch1.addConstraint(Sketcher.Constraint("DistanceX", 60, 3, -1, 1, Q("358 mm")))
sketch1.addConstraint(Sketcher.Constraint("Radius", 9, Q("243.727 mm")))
sketch1.addConstraint(Sketcher.Constraint("Radius", 14, Q("108.451 mm")))
sketch1.addConstraint(Sketcher.Constraint("Radius", 60, Q("41.627 mm")))
sketch1.addConstraint(Sketcher.Constraint("Diameter", 16, Q("25.0474 mm")))
sketch1.addConstraint(Sketcher.Constraint("Diameter", 17, Q("52.2288 mm")))
sketch1.addConstraint(Sketcher.Constraint("DistanceY", 22, 1, 22, 2, Q("7.55 mm")))
sketch1.addConstraint(Sketcher.Constraint("DistanceY", 57, 2, 57, 1, Q("45.75 mm")))
sketch1.addConstraint(Sketcher.Constraint("DistanceX", -1, 1, 0, 3, Q("116.5 mm")))
sketch1.addConstraint(Sketcher.Constraint("DistanceX", 38, 3, -1, 1, Q("96.5 mm")))
sketch1.addConstraint(Sketcher.Constraint("DistanceY", -1, 1, 53, 3, Q("111.9884 mm")))
sketch1.addConstraint(Sketcher.Constraint("DistanceX", 54, 3, -1, 1, Q("349.5 mm")))
sketch1.addConstraint(Sketcher.Constraint("Radius", 5, Q("72.9952 mm")))
sketch1.addConstraint(Sketcher.Constraint("Radius", 10, Q("98.9865 mm")))
sketch1.addConstraint(Sketcher.Constraint("Radius", 53, Q("104.8374 mm")))
sketch1.addConstraint(Sketcher.Constraint("DistanceX", -1, 1, 23, 3, Q("37.447 mm")))
sketch1.addConstraint(Sketcher.Constraint("DistanceY", -1, 1, 23, 3, Q("37.514 mm")))
sketch1.addConstraint(Sketcher.Constraint("DistanceX", -1, 1, 10, 3, Q("51.2202 mm")))
sketch1.addConstraint(Sketcher.Constraint("DistanceX", -1, 1, 16, 3, Q("20.1053 mm")))
sketch1.addConstraint(Sketcher.Constraint("DistanceY", -1, 1, 16, 3, Q("56.1526 mm")))
pad1 = doc.addObject("PartDesign::Pad", "Pad")
body.addObject(pad1)
pad1.Profile = sketch1
pad1.Length = 3

sketch2 = doc.addObject("Sketcher::SketchObject", "Sketch001")
body.addObject(sketch2)
sketch2.AttachmentSupport = (doc.XY_Plane, [""])
sketch2.MapMode = "FlatFace"
sketch2.AttachmentOffset = App.Placement(App.Vector(0, 0, 5), App.Rotation())
sketch2.addGeometry(Part.Circle(App.Vector(116.5, -59.5, 0), App.Vector(0, 0, 1), 2.25), False)
sketch2.addGeometry(Part.Circle(App.Vector(0, -91.5, 0), App.Vector(0, 0, 1), 2.25), False)
sketch2.addGeometry(Part.Circle(App.Vector(0, 91.5, 0), App.Vector(0, 0, 1), 2.25), False)
sketch2.addGeometry(Part.Circle(App.Vector(99.5, 91.5, 0), App.Vector(0, 0, 1), 2.25), False)
sketch2.addGeometry(Part.Circle(App.Vector(116.5, 59.5, 0), App.Vector(0, 0, 1), 2.25), False)
sketch2.addGeometry(Part.Circle(App.Vector(-96.5, -91.5, 0), App.Vector(0, 0, 1), 2.25), False)
sketch2.addGeometry(Part.Circle(App.Vector(-153.5, -91.5, 0), App.Vector(0, 0, 1), 2.25), False)
sketch2.addGeometry(Part.Circle(App.Vector(-153.5, 91.5, 0), App.Vector(0, 0, 1), 2.25), False)
sketch2.addGeometry(Part.Circle(App.Vector(-96.5, 91.5, 0), App.Vector(0, 0, 1), 2.25), False)
sketch2.addGeometry(Part.Circle(App.Vector(-250, 91.5, 0), App.Vector(0, 0, 1), 2.25), False)
sketch2.addGeometry(Part.Circle(App.Vector(-349.5, 91.5, 0), App.Vector(0, 0, 1), 2.25), False)
sketch2.addGeometry(Part.Circle(App.Vector(-366.5, 45.75, 0), App.Vector(0, 0, 1), 2.25), False)
sketch2.addGeometry(Part.Circle(App.Vector(-366.5, -45.75, 0), App.Vector(0, 0, 1), 2.25), False)
sketch2.addGeometry(Part.Circle(App.Vector(-349.5, -91.5, 0), App.Vector(0, 0, 1), 2.25), False)
sketch2.addGeometry(Part.Circle(App.Vector(-250, -91.5, 0), App.Vector(0, 0, 1), 2.25), False)
sketch2.addConstraint(Sketcher.Constraint("Equal", 0, 1))
sketch2.addConstraint(Sketcher.Constraint("Equal", 1, 2))
sketch2.addConstraint(Sketcher.Constraint("Equal", 2, 3))
sketch2.addConstraint(Sketcher.Constraint("Equal", 3, 4))
sketch2.addConstraint(Sketcher.Constraint("Equal", 4, 5))
sketch2.addConstraint(Sketcher.Constraint("Equal", 5, 6))
sketch2.addConstraint(Sketcher.Constraint("Equal", 6, 7))
sketch2.addConstraint(Sketcher.Constraint("Equal", 7, 8))
sketch2.addConstraint(Sketcher.Constraint("Equal", 8, 9))
sketch2.addConstraint(Sketcher.Constraint("Equal", 9, 10))
sketch2.addConstraint(Sketcher.Constraint("Equal", 10, 11))
sketch2.addConstraint(Sketcher.Constraint("Equal", 11, 12))
sketch2.addConstraint(Sketcher.Constraint("Equal", 12, 13))
sketch2.addConstraint(Sketcher.Constraint("Equal", 13, 14))
sketch2.addConstraint(Sketcher.Constraint("Symmetric", 1, 3, 2, 3, -1, 1))
sketch2.addConstraint(Sketcher.Constraint("Symmetric", 0, 3, 4, 3, -1))
sketch2.addConstraint(Sketcher.Constraint("Symmetric", 6, 3, 7, 3, -1))
sketch2.addConstraint(Sketcher.Constraint("Symmetric", 5, 3, 8, 3, -1))
sketch2.addConstraint(Sketcher.Constraint("Symmetric", 11, 3, 12, 3, -1))
sketch2.addConstraint(Sketcher.Constraint("Symmetric", 10, 3, 13, 3, -1))
sketch2.addConstraint(Sketcher.Constraint("Symmetric", 9, 3, 14, 3, -1))
sketch2.addConstraint(Sketcher.Constraint("PointOnObject", 1, 3, -2))
sketch2.addConstraint(Sketcher.Constraint("Horizontal", 2, 3, 3, 3))
sketch2.addConstraint(Sketcher.Constraint("Horizontal", 1, 3, 5, 3))
sketch2.addConstraint(Sketcher.Constraint("Horizontal", 5, 3, 6, 3))
sketch2.addConstraint(Sketcher.Constraint("Horizontal", 8, 3, 9, 3))
sketch2.addConstraint(Sketcher.Constraint("Horizontal", 9, 3, 10, 3))
sketch2.addConstraint(Sketcher.Constraint("Diameter", 0, Q("4.5 mm")))
sketch2.addConstraint(Sketcher.Constraint("DistanceX", 9, 3, -1, 1, Q("250 mm")))
sketch2.addConstraint(Sketcher.Constraint("DistanceY", 1, 3, 0, 3, Q("32 mm")))
sketch2.addConstraint(Sketcher.Constraint("DistanceY", 1, 3, 2, 3, Q("183 mm")))
sketch2.addConstraint(Sketcher.Constraint("DistanceX", 3, 3, 0, 3, Q("17 mm")))
sketch2.addConstraint(Sketcher.Constraint("DistanceX", 5, 3, 0, 3, Q("213 mm")))
sketch2.addConstraint(Sketcher.Constraint("DistanceX", 6, 3, 5, 3, Q("57 mm")))
sketch2.addConstraint(Sketcher.Constraint("DistanceX", 10, 3, 7, 3, Q("196 mm")))
sketch2.addConstraint(Sketcher.Constraint("DistanceX", 11, 3, 10, 3, Q("17 mm")))
sketch2.addConstraint(Sketcher.Constraint("DistanceX", -1, 1, 0, 3, Q("116.5 mm")))
sketch2.addConstraint(Sketcher.Constraint("DistanceY", 12, 3, 11, 3, Q("91.5 mm")))
doc.recompute()
hole = doc.addObject("PartDesign::Hole", "Hole")
body.addObject(hole)
hole.Profile = sketch2
hole.ThreadType = "None"
hole.Diameter = 4.5
hole.DepthType = "ThroughAll"
hole.HoleCutType = "Countersink"
hole.HoleCutDiameter = 12
hole.HoleCutCountersinkAngle = 90

doc.recompute()
